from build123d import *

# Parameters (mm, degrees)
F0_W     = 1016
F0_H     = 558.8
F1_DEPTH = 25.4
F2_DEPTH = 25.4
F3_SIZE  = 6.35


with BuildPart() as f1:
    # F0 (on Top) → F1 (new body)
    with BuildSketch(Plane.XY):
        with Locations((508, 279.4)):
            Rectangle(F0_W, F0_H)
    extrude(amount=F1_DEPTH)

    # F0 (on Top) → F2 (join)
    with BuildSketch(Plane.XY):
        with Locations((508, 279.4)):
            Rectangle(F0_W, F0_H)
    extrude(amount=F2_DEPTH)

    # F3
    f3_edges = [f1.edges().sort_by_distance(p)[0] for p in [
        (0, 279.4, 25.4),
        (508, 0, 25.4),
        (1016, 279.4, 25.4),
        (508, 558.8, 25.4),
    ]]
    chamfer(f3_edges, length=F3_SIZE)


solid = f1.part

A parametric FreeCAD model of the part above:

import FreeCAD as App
import Part
import Sketcher
Q = App.Units.Quantity


def edges_at(feature, points):
    """Names of the edges that pass closest to the given points."""
    edges = feature.Shape.Edges
    near = lambda p: min(range(len(edges)), key=lambda i: edges[i].distToShape(Part.Vertex(*p))[0])
    return sorted({f"Edge{near(p) + 1}" for p in points})

doc = App.newDocument("Part")
body = doc.addObject("PartDesign::Body", "Body")

sketch1 = body.newObject("Sketcher::SketchObject", "Sketch")
sketch1.AttachmentSupport = (doc.getObject("XY_Plane"), [""])
sketch1.MapMode = "FlatFace"
sketch1.addGeometry(Part.LineSegment(App.Vector(0, 559, 0), App.Vector(0, 0, 0)), False)
sketch1.addGeometry(Part.LineSegment(App.Vector(0, 0, 0), App.Vector(1016, 0, 0)), False)
sketch1.addGeometry(Part.LineSegment(App.Vector(1016, 0, 0), App.Vector(1016, 559, 0)), False)
sketch1.addGeometry(Part.LineSegment(App.Vector(1016, 559, 0), App.Vector(0, 559, 0)), False)
sketch1.addConstraint(Sketcher.Constraint("Coincident", 0, 2, 1, 1))
sketch1.addConstraint(Sketcher.Constraint("Coincident", 1, 2, 2, 1))
sketch1.addConstraint(Sketcher.Constraint("Coincident", 2, 2, 3, 1))
sketch1.addConstraint(Sketcher.Constraint("Coincident", 3, 2, 0, 1))
sketch1.addConstraint(Sketcher.Constraint("Vertical", 0))
sketch1.addConstraint(Sketcher.Constraint("Horizontal", 1))
sketch1.addConstraint(Sketcher.Constraint("Vertical", 2))
sketch1.addConstraint(Sketcher.Constraint("Horizontal", 3))
sketch1.addConstraint(Sketcher.Constraint("Coincident", 0, 2, -1, 1))
sketch1.addConstraint(Sketcher.Constraint("DistanceX", 1, 1, 1, 2, Q("40 in")))
sketch1.addConstraint(Sketcher.Constraint("DistanceY", 0, 2, 0, 1, Q("22 in")))
pad1 = body.newObject("PartDesign::Pad", "Pad")
pad1.Profile = sketch1
pad1.Length = Q("1 in")

sketch2 = body.newObject("Sketcher::SketchObject", "Sketch001")
sketch2.AttachmentSupport = (doc.getObject("XY_Plane"), [""])
sketch2.MapMode = "FlatFace"
sketch2.addGeometry(Part.LineSegment(App.Vector(0, 559, 0), App.Vector(0, 0, 0)), False)
sketch2.addGeometry(Part.LineSegment(App.Vector(0, 0, 0), App.Vector(1016, 0, 0)), False)
sketch2.addGeometry(Part.LineSegment(App.Vector(1016, 0, 0), App.Vector(1016, 559, 0)), False)
sketch2.addGeometry(Part.LineSegment(App.Vector(1016, 559, 0), App.Vector(0, 559, 0)), False)
sketch2.addConstraint(Sketcher.Constraint("Coincident", 0, 2, 1, 1))
sketch2.addConstraint(Sketcher.Constraint("Coincident", 1, 2, 2, 1))
sketch2.addConstraint(Sketcher.Constraint("Coincident", 2, 2, 3, 1))
sketch2.addConstraint(Sketcher.Constraint("Coincident", 3, 2, 0, 1))
sketch2.addConstraint(Sketcher.Constraint("Vertical", 0))
sketch2.addConstraint(Sketcher.Constraint("Horizontal", 1))
sketch2.addConstraint(Sketcher.Constraint("Vertical", 2))
sketch2.addConstraint(Sketcher.Constraint("Horizontal", 3))
sketch2.addConstraint(Sketcher.Constraint("Coincident", 0, 2, -1, 1))
sketch2.addConstraint(Sketcher.Constraint("DistanceX", 1, 1, 1, 2, Q("40 in")))
sketch2.addConstraint(Sketcher.Constraint("DistanceY", 0, 2, 0, 1, Q("22 in")))
pad2 = body.newObject("PartDesign::Pad", "Pad001")
pad2.Profile = sketch2
pad2.Length = Q("1 in")
doc.recompute()

chamfer = body.newObject("PartDesign::Chamfer", "Chamfer")
chamfer.Base = (pad2, edges_at(pad2, [
    (0, 279.4, 25.4),
    (508, 0, 25.4),
    (1016, 279.4, 25.4),
    (508, 558.8, 25.4),
]))
chamfer.Size = Q("0.25 in")

doc.recompute()
